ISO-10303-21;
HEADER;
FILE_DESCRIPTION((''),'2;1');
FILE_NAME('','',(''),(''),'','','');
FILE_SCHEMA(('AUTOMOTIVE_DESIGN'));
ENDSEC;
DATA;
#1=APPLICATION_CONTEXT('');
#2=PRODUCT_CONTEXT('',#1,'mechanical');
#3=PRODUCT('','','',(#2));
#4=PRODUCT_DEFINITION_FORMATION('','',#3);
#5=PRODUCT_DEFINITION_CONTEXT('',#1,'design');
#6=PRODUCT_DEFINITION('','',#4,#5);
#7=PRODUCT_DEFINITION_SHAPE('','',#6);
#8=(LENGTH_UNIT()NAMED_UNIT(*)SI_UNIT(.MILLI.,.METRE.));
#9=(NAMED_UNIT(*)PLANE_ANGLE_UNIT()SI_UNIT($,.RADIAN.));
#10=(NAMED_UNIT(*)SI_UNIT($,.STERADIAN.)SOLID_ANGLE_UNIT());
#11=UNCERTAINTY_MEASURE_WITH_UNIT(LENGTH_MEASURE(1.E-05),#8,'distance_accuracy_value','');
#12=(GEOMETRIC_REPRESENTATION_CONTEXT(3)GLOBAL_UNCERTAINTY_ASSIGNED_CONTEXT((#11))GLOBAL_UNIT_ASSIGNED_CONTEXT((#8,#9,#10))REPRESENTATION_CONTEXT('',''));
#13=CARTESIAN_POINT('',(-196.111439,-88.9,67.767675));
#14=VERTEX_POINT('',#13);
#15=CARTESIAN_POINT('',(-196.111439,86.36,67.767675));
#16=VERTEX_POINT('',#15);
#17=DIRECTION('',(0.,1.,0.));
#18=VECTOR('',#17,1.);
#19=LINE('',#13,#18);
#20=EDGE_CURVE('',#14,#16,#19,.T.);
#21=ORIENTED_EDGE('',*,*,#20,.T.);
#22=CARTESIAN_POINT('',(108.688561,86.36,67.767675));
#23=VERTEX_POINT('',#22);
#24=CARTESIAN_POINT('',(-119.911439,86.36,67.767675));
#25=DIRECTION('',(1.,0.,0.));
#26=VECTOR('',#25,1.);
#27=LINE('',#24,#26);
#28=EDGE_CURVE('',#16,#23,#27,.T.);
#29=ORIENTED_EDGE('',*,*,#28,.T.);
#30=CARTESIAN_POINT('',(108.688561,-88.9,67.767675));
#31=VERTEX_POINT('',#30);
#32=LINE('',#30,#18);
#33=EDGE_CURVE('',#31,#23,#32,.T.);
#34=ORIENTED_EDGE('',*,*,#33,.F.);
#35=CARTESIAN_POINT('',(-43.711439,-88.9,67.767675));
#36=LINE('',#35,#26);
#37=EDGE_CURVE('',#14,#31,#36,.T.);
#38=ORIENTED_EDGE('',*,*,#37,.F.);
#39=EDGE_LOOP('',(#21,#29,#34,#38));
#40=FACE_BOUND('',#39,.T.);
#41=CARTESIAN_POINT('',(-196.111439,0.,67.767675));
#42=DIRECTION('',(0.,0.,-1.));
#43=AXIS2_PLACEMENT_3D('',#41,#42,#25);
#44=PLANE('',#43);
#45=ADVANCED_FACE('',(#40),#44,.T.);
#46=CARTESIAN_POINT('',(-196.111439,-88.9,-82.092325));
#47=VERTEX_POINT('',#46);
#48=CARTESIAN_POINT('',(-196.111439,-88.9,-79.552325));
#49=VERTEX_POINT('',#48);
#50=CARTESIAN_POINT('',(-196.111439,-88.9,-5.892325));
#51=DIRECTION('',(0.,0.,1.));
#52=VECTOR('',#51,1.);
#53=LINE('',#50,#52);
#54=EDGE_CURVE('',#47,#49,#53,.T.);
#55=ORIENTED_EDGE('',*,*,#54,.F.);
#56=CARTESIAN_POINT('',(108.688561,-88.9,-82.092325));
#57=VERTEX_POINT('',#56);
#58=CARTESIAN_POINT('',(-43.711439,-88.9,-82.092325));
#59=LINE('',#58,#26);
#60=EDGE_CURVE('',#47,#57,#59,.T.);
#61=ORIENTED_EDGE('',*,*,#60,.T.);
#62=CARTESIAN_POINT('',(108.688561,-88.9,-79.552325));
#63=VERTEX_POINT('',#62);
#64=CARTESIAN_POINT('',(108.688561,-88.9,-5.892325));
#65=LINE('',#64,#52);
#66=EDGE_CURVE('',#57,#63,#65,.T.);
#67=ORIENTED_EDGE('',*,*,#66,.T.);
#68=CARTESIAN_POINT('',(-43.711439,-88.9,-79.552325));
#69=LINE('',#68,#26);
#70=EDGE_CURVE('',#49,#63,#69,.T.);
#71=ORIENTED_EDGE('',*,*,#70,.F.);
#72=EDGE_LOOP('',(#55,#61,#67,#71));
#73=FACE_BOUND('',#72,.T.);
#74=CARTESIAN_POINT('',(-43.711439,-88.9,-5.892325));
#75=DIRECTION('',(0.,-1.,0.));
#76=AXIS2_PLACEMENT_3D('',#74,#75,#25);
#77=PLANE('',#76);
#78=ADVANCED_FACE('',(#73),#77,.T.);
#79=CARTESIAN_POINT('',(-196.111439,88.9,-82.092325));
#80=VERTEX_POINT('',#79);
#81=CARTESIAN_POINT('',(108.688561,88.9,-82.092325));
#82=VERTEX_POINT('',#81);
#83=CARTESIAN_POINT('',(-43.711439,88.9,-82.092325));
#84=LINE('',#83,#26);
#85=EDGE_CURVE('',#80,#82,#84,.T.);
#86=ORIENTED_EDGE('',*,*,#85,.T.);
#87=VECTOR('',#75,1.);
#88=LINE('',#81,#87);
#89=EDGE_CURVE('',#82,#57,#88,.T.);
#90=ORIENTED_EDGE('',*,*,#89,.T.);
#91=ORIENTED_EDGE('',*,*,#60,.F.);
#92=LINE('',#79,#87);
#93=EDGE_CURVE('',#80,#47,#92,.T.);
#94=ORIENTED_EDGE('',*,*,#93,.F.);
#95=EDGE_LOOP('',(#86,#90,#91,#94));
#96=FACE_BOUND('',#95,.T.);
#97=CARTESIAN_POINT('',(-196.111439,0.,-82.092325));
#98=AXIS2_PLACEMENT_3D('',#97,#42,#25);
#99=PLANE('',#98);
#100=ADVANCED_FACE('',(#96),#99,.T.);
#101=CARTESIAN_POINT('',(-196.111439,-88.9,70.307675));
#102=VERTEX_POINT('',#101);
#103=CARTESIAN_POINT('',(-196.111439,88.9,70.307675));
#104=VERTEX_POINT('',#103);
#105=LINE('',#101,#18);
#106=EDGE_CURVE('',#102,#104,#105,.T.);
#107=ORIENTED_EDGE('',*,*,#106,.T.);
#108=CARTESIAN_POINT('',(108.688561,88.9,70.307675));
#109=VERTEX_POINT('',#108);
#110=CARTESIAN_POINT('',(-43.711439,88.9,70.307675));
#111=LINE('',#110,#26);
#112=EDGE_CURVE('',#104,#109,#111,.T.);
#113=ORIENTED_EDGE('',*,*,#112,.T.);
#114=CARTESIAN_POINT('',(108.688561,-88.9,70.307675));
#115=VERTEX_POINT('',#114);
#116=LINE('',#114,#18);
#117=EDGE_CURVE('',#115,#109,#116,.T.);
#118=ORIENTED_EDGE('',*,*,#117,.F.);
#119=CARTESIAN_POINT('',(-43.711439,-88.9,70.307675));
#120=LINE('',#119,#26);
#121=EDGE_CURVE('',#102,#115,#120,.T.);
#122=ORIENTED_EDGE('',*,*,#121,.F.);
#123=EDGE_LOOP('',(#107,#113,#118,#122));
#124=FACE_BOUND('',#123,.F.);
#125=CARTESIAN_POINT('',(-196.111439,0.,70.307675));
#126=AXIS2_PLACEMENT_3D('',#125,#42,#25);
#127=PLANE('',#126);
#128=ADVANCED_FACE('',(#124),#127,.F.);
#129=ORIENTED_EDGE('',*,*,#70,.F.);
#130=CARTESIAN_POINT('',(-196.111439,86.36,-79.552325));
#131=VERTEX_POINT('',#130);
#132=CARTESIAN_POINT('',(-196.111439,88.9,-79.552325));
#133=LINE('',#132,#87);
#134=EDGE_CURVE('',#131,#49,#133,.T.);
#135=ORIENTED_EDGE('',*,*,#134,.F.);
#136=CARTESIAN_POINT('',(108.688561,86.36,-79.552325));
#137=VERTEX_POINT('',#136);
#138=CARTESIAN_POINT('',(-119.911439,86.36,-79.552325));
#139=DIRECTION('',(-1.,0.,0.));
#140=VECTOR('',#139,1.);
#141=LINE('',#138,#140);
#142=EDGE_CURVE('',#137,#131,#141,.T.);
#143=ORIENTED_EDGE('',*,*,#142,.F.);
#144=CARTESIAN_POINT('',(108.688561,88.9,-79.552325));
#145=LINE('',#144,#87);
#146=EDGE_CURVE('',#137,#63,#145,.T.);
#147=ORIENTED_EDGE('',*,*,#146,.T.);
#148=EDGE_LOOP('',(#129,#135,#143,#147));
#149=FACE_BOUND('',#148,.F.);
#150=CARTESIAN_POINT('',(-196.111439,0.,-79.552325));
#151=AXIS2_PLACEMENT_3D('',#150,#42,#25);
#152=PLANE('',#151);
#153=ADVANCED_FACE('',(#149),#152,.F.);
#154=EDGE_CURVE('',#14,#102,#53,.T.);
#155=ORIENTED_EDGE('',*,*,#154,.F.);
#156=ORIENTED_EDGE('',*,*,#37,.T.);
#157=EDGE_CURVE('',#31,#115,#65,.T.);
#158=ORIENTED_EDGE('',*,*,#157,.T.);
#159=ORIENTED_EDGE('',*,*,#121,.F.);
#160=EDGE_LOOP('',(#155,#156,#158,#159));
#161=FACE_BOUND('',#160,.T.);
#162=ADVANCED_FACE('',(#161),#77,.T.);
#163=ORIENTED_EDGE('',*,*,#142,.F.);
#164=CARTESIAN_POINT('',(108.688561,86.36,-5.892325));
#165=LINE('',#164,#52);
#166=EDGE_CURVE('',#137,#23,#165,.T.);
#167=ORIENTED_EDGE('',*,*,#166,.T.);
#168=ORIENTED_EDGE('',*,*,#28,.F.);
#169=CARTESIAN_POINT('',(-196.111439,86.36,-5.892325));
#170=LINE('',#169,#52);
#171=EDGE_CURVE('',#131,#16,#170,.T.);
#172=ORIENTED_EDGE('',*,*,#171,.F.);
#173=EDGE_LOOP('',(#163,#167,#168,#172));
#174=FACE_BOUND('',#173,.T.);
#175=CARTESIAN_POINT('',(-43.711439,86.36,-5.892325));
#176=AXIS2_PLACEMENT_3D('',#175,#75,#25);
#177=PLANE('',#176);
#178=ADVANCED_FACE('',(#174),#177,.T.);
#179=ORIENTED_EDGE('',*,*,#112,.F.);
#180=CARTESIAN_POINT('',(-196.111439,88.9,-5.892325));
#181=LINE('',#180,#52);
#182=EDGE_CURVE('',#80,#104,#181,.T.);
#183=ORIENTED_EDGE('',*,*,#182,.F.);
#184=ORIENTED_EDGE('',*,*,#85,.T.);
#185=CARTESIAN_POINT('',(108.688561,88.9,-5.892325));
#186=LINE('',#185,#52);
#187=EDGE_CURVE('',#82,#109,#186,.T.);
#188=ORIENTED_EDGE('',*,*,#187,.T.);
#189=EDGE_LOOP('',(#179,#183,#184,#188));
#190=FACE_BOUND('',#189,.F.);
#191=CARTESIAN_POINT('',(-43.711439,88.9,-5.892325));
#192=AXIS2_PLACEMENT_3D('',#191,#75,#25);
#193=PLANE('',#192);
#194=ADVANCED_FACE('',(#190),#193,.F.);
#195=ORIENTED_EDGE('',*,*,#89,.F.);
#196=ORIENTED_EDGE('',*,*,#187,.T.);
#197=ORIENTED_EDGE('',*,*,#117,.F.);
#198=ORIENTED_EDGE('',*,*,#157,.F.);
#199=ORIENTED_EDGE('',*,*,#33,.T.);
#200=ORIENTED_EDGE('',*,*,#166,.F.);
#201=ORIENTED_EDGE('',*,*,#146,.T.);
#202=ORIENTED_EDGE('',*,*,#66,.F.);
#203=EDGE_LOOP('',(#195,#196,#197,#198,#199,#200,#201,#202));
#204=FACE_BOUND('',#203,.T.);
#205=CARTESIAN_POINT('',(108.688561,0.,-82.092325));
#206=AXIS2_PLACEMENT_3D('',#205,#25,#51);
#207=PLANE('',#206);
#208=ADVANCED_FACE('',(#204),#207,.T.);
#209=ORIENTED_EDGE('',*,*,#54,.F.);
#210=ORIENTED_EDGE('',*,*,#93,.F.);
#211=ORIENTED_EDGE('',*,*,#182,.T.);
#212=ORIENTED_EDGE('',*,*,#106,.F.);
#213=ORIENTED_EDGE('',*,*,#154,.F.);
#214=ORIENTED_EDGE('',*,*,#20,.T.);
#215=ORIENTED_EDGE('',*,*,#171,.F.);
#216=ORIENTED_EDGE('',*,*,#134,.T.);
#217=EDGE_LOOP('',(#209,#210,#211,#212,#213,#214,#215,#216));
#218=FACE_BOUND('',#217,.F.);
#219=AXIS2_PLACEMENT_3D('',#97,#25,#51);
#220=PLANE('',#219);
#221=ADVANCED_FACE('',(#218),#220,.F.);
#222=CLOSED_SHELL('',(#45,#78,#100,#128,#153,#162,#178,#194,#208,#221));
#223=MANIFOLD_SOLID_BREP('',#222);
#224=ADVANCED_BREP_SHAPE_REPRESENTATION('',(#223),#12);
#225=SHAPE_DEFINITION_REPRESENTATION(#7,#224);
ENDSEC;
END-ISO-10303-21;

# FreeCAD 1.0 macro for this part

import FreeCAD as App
import Part
import Sketcher
Q = App.Units.Quantity


def faces_at(feature, points):
    """Names of the faces that lie closest to the given points."""
    faces = feature.Shape.Faces
    near = lambda p: min(range(len(faces)), key=lambda i: faces[i].distToShape(Part.Vertex(*p))[0])
    return sorted({f"Face{near(p) + 1}" for p in points})

doc = App.newDocument("Part")
params = doc.addObject("Spreadsheet::Sheet", "Params")
for row, (alias, value) in enumerate([
    ("sketch1_width", "12 in"),
    ("sketch1_height", "6 in"),
    ("pad1_length", "7 in"),
    ("thickness_wall", "0.1 in"),
], start=1):
    params.set(f"A{row}", alias)
    params.set(f"B{row}", "=" + value)
    params.setAlias(f"B{row}", alias)

body = doc.addObject("PartDesign::Body", "Body")

# Sketch on XZ plane
sketch1 = body.newObject("Sketcher::SketchObject", "Sketch")
sketch1.AttachmentSupport = (doc.getObject("XZ_Plane"), [""])
sketch1.MapMode = "FlatFace"
sketch1.addGeometry([
    Part.LineSegment(App.Vector(-196.111439, 70.307675, 0), App.Vector(-196.111439, -82.092325, 0)),
    Part.LineSegment(App.Vector(-196.111439, -82.092325, 0), App.Vector(108.688561, -82.092325, 0)),
    Part.LineSegment(App.Vector(108.688561, -82.092325, 0), App.Vector(108.688561, 70.307675, 0)),
    Part.LineSegment(App.Vector(108.688561, 70.307675, 0), App.Vector(-196.111439, 70.307675, 0)),
], False)
sketch1.addConstraint([
    Sketcher.Constraint("Coincident", 0, 2, 1, 1),
    Sketcher.Constraint("Coincident", 1, 2, 2, 1),
    Sketcher.Constraint("Coincident", 2, 2, 3, 1),
    Sketcher.Constraint("Coincident", 3, 2, 0, 1),
    Sketcher.Constraint("Vertical", 0),
    Sketcher.Constraint("Horizontal", 1),
    Sketcher.Constraint("Vertical", 2),
    Sketcher.Constraint("Horizontal", 3),
    Sketcher.Constraint("DistanceX", 1, 1, 1, 2, Q("12 in")),
    Sketcher.Constraint("DistanceY", 0, 2, 0, 1, Q("6 in")),
    Sketcher.Constraint("DistanceX", 0, 2, -1, 1, Q("196.111439 mm")),
    Sketcher.Constraint("DistanceY", 0, 2, -1, 1, Q("82.092325 mm")),
])
sketch1.setExpression("Constraints[8]", "Params.sketch1_width")
sketch1.setExpression("Constraints[9]", "Params.sketch1_height")
pad1 = body.newObject("PartDesign::Pad", "Pad")
pad1.Profile = sketch1
pad1.setExpression("Length", "Params.pad1_length")
pad1.Midplane = True
doc.recompute()

thickness = body.newObject("PartDesign::Thickness", "Thickness")
thickness.Base = (pad1, faces_at(pad1, [(-43.711, -88.9, -5.892), (-196.111, 0, -5.892), (108.689, 0, -5.892)]))
thickness.setExpression("Value", "Params.thickness_wall")
thickness.Reversed = True
thickness.Join = "Arc"

doc.recompute()
